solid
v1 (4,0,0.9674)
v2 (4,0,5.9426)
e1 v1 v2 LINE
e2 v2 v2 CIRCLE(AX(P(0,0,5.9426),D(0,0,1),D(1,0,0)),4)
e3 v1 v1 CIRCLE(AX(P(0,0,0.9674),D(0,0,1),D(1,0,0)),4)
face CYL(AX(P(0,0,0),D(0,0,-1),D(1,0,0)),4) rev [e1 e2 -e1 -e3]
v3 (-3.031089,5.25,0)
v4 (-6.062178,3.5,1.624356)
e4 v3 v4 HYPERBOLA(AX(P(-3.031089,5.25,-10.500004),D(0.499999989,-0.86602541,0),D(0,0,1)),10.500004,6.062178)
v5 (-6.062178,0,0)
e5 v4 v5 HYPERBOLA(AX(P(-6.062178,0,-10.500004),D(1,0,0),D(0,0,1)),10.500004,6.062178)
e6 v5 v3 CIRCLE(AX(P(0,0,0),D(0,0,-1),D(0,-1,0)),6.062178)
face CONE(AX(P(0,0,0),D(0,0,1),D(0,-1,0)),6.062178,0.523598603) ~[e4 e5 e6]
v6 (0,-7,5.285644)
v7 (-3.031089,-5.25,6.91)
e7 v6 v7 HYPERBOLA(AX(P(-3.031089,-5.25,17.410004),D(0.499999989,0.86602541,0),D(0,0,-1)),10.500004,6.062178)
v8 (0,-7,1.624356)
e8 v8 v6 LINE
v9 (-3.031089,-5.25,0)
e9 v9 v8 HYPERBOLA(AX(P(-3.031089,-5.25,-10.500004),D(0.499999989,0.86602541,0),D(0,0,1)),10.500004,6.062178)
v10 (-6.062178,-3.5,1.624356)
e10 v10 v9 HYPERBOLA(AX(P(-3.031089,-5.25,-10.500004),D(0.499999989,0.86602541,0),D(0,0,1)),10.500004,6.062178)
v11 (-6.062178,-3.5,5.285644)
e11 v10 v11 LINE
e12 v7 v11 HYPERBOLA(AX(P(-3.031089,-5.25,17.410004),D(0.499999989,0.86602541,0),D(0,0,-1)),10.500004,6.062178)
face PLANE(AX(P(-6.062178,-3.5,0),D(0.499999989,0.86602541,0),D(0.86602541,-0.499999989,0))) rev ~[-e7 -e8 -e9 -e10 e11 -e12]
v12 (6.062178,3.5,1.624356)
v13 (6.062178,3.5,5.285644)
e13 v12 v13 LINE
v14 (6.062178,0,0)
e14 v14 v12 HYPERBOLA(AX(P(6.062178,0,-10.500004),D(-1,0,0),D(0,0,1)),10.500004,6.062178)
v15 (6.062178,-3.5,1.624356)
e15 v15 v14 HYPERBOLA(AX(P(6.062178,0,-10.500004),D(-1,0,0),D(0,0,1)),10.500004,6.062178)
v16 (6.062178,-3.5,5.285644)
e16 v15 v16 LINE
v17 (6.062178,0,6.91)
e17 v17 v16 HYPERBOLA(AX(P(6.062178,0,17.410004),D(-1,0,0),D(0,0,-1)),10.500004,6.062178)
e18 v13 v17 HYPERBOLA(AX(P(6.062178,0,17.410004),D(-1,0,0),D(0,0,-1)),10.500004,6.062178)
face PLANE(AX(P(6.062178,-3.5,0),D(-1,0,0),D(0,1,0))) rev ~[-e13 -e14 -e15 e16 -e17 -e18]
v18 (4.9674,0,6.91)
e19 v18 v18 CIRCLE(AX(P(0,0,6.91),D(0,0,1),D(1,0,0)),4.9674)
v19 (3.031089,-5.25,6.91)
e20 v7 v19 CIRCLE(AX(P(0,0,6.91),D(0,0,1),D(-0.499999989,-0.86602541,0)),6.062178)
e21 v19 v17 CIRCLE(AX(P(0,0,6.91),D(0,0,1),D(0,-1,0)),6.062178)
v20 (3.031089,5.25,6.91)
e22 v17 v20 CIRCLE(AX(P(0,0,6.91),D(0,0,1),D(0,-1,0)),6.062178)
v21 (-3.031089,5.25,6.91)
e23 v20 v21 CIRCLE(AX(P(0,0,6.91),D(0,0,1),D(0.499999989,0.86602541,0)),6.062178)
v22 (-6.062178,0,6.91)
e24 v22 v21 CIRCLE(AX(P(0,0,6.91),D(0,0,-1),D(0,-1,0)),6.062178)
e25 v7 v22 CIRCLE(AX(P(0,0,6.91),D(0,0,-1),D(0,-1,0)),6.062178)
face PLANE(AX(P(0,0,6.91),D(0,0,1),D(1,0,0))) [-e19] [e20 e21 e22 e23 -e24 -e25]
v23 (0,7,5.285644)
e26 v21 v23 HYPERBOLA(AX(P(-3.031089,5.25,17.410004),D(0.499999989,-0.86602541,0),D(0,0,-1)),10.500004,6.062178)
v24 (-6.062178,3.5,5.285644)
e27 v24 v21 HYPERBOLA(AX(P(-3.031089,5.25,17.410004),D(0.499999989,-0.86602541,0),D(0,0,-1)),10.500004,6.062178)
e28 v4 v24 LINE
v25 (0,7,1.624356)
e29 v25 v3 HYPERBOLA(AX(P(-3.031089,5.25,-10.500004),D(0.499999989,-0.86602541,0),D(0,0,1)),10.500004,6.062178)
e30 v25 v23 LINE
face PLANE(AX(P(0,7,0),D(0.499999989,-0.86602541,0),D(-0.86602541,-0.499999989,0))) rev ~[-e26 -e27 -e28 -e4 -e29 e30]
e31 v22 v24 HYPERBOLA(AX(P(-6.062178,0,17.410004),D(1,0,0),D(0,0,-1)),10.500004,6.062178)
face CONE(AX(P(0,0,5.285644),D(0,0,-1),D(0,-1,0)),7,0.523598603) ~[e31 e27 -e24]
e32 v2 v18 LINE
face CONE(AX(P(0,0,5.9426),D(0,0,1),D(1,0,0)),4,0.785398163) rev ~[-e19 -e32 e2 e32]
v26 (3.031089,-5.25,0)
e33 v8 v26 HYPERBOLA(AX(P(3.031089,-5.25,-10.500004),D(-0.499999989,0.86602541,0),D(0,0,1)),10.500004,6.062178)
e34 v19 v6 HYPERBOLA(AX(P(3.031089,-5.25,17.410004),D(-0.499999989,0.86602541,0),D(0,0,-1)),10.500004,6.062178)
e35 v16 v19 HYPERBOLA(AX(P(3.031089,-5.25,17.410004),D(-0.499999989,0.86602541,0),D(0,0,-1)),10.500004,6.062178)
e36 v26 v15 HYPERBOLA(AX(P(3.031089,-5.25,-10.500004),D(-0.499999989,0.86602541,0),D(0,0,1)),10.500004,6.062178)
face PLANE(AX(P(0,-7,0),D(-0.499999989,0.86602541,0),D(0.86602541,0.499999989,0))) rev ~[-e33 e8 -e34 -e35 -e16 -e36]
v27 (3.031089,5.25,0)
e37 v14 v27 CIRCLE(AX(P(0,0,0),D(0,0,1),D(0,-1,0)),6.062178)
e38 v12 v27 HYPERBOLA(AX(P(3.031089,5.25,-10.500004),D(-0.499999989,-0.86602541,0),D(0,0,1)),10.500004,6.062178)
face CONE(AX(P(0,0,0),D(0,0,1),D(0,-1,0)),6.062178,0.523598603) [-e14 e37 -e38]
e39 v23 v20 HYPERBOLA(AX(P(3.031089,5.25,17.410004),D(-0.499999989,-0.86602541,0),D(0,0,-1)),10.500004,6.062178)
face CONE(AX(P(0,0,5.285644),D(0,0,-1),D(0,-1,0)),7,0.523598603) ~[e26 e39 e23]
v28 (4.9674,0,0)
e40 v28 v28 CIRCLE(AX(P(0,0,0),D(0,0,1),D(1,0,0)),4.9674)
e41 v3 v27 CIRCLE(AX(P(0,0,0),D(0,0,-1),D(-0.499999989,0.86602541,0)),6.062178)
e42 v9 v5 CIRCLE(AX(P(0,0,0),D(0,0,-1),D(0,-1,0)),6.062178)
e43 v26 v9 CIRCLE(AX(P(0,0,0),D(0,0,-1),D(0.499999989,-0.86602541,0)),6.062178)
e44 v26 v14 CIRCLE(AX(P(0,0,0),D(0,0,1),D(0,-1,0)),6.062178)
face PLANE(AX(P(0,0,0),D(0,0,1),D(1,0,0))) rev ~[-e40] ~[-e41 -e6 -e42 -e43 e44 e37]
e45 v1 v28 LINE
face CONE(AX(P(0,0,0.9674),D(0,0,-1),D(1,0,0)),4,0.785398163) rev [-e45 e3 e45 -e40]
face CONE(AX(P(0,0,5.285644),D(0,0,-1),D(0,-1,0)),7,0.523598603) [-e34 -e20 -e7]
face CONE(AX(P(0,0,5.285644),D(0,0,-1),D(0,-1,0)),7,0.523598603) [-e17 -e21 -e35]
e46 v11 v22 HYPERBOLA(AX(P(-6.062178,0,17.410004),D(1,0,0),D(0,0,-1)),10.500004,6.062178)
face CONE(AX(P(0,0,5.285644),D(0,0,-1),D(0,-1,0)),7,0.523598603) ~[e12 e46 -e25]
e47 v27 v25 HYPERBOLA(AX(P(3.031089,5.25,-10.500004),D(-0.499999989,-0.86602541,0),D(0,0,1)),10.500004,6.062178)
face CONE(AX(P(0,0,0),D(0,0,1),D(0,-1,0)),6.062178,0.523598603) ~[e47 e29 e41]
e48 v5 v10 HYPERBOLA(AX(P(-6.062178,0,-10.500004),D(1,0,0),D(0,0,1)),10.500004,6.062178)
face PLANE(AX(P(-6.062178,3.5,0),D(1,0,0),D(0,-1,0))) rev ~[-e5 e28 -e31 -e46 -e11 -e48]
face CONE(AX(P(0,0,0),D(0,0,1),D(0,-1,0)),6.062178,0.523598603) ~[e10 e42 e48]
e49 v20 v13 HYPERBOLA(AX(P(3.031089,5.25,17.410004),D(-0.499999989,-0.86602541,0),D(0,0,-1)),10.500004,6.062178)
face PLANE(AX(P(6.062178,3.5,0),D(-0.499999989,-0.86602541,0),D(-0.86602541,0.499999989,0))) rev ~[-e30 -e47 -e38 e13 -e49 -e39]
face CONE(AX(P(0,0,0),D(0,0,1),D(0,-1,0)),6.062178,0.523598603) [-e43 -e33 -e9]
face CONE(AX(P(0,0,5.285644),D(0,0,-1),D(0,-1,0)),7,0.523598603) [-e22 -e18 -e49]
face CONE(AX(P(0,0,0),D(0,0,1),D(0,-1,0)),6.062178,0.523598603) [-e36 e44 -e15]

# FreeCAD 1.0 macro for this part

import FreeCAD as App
import Part
import Sketcher

V = App.Vector
Q = App.Units.Quantity


def edges_at(feature, points):
    """Names of the edges that pass closest to the given points."""
    edges = feature.Shape.Edges
    near = lambda p: min(range(len(edges)), key=lambda i: edges[i].distToShape(Part.Vertex(*p))[0])
    return sorted({f"Edge{near(p) + 1}" for p in points})


def add_polygon(sketch, points):
    """Adds a closed chain of lines whose ends are joined by coincident constraints."""
    first, n = sketch.GeometryCount, len(points)
    for a, b in zip(points, points[1:] + points[:1]):
        sketch.addGeometry(Part.LineSegment(App.Vector(*a, 0), App.Vector(*b, 0)), False)
    for i in range(n):
        sketch.addConstraint(Sketcher.Constraint("Coincident", first + i, 2, first + (i + 1) % n, 1))

doc = App.newDocument("Part")
body = doc.addObject("PartDesign::Body", "Body")

# Sketch on XY plane
sketch1 = doc.addObject("Sketcher::SketchObject", "Sketch")
body.addObject(sketch1)
sketch1.AttachmentSupport = (doc.XY_Plane, [""])
sketch1.MapMode = "FlatFace"
add_polygon(sketch1, [(0, 7), (-6.1, 3.5), (-6.1, -3.5), (0, -7), (6.1, -3.5), (6.1, 3.5)])  # lines 0-5
sketch1.addGeometry(Part.Circle(V(0, 0, 0), V(0, 0, 1), 4), False)  # 6
sketch1.addConstraint([
    Sketcher.Constraint("Vertical", 1),
    Sketcher.Constraint("Vertical", 4),
    Sketcher.Constraint("Coincident", 6, 3, -1, 1),
    Sketcher.Constraint("Symmetric", 0, 2, 3, 2, -1, 1),
    Sketcher.Constraint("Symmetric", 2, 2, 5, 2, -1, 1),
    Sketcher.Constraint("PointOnObject", 2, 2, -2),
    Sketcher.Constraint("Parallel", 2, 5),
    Sketcher.Constraint("Horizontal", 1, 2, 3, 2),
    Sketcher.Constraint("Diameter", 6, 8.0),
    Sketcher.Constraint("DistanceY", 1, 2, 1, 1, 7.0),
    Sketcher.Constraint("Angle", 0, Q("-150.000001 deg")),
    Sketcher.Constraint("Distance", 0, 7.0),
])
pad1 = doc.addObject("PartDesign::Pad", "Pad")
body.addObject(pad1)
pad1.Profile = sketch1
pad1.Length = 6.91
doc.recompute()

chamfer = doc.addObject("PartDesign::Chamfer", "Chamfer")
body.addObject(chamfer)
chamfer.Base = (pad1, edges_at(pad1, [(-4, 0, 6.91)]))
chamfer.Size = 0.9674
doc.recompute()

chamfer2 = doc.addObject("PartDesign::Chamfer", "Chamfer001")
body.addObject(chamfer2)
chamfer2.Base = (chamfer, edges_at(chamfer, [(-4, 0, 0)]))
chamfer2.Size = 0.9674

# Sketch on YZ plane
sketch2 = doc.addObject("Sketcher::SketchObject", "Sketch001")
body.addObject(sketch2)
sketch2.AttachmentSupport = (doc.YZ_Plane, [""])
sketch2.MapMode = "FlatFace"
add_polygon(sketch2, [(-6.1, 6.9), (-7, 6.9), (-7, 5.3)])  # lines 0-2
add_polygon(sketch2, [(-7, 1.6), (-7, 0), (-6.1, 0)])  # lines 3-5
sketch2.addConstraint([
    Sketcher.Constraint("Horizontal", 0),
    Sketcher.Constraint("Vertical", 1),
    Sketcher.Constraint("Vertical", 3),
    Sketcher.Constraint("Horizontal", 4),
    Sketcher.Constraint("PointOnObject", 3, 2, -1),
    Sketcher.Constraint("Vertical", 1, 2, 3, 2),
    Sketcher.Constraint("Vertical", 2, 2, 4, 2),
    Sketcher.Constraint("Equal", 1, 3),
    Sketcher.Constraint("Angle", 2, Q("60.00001 deg")),
    Sketcher.Constraint("DistanceX", 0, 2, -1, 1, 7.0),
    Sketcher.Constraint("DistanceY", -1, 1, 0, 2, 6.91),
    Sketcher.Constraint("DistanceX", 0, 2, 0, 1, 0.937822),
])
groove = doc.addObject("PartDesign::Groove", "Groove")
body.addObject(groove)
groove.Profile = sketch2
groove.ReferenceAxis = (sketch2, ["V_Axis"])
groove.Angle = 180
groove.Reversed = True

# Sketch on YZ plane
sketch3 = doc.addObject("Sketcher::SketchObject", "Sketch002")
body.addObject(sketch3)
sketch3.AttachmentSupport = (doc.YZ_Plane, [""])
sketch3.MapMode = "FlatFace"
add_polygon(sketch3, [(-6.1, 6.9), (-7, 6.9), (-7, 5.3)])  # lines 0-2
add_polygon(sketch3, [(-7, 1.6), (-7, 0), (-6.1, 0)])  # lines 3-5
sketch3.addConstraint([
    Sketcher.Constraint("Horizontal", 0),
    Sketcher.Constraint("Vertical", 1),
    Sketcher.Constraint("Vertical", 3),
    Sketcher.Constraint("Horizontal", 4),
    Sketcher.Constraint("PointOnObject", 3, 2, -1),
    Sketcher.Constraint("Vertical", 1, 2, 3, 2),
    Sketcher.Constraint("Vertical", 2, 2, 4, 2),
    Sketcher.Constraint("Equal", 1, 3),
    Sketcher.Constraint("Angle", 2, Q("60.00001 deg")),
    Sketcher.Constraint("DistanceX", 0, 2, -1, 1, 7.0),
    Sketcher.Constraint("DistanceY", -1, 1, 0, 2, 6.91),
    Sketcher.Constraint("DistanceX", 0, 2, 0, 1, 0.937822),
])
groove2 = doc.addObject("PartDesign::Groove", "Groove001")
body.addObject(groove2)
groove2.Profile = sketch3
groove2.ReferenceAxis = (sketch3, ["V_Axis"])
groove2.Angle = 180

doc.recompute()
